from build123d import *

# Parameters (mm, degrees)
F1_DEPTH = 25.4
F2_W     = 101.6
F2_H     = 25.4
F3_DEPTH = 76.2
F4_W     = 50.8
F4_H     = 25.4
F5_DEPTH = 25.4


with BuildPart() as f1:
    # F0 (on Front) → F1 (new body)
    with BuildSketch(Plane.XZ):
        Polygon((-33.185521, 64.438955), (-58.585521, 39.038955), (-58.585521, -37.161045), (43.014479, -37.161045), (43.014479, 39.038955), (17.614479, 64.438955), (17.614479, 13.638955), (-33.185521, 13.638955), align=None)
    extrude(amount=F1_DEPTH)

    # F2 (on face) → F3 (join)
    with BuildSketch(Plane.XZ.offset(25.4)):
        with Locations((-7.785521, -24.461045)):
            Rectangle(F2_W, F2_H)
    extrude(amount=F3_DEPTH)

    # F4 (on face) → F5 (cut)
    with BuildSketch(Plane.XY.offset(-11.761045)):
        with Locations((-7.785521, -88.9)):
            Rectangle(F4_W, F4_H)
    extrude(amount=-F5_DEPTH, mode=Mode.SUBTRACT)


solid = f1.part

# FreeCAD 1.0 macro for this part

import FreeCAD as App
import Part
import Sketcher
from FreeCAD import Vector
Q = App.Units.Quantity

doc = App.newDocument("Part")
body = doc.addObject("PartDesign::Body", "Body")

# Sketch on XZ plane
sketch1 = body.newObject("Sketcher::SketchObject", "Sketch")
sketch1.AttachmentSupport = (doc.getObject("XZ_Plane"), [""])
sketch1.MapMode = "FlatFace"
sketch1.addGeometry([
    Part.LineSegment(Vector(-33, 64, 0), Vector(-59, 39, 0)),  # 0
    Part.LineSegment(Vector(-59, 39, 0), Vector(-59, -37, 0)),  # 1
    Part.LineSegment(Vector(-59, -37, 0), Vector(43, -37, 0)),  # 2
    Part.LineSegment(Vector(43, -37, 0), Vector(43, 39, 0)),  # 3
    Part.LineSegment(Vector(43, 39, 0), Vector(18, 64, 0)),  # 4
    Part.LineSegment(Vector(18, 64, 0), Vector(18, 14, 0)),  # 5
    Part.LineSegment(Vector(18, 14, 0), Vector(-33, 14, 0)),  # 6
    Part.LineSegment(Vector(-33, 14, 0), Vector(-33, 64, 0)),  # 7
], False)
sketch1.addConstraint([
    Sketcher.Constraint("Coincident", 0, 2, 1, 1),
    Sketcher.Constraint("Coincident", 1, 2, 2, 1),
    Sketcher.Constraint("Coincident", 2, 2, 3, 1),
    Sketcher.Constraint("Coincident", 3, 2, 4, 1),
    Sketcher.Constraint("Coincident", 4, 2, 5, 1),
    Sketcher.Constraint("Coincident", 5, 2, 6, 1),
    Sketcher.Constraint("Coincident", 6, 2, 7, 1),
    Sketcher.Constraint("Coincident", 7, 2, 0, 1),
    Sketcher.Constraint("Vertical", 1),
    Sketcher.Constraint("Horizontal", 2),
    Sketcher.Constraint("Vertical", 3),
    Sketcher.Constraint("Vertical", 5),
    Sketcher.Constraint("Horizontal", 6),
    Sketcher.Constraint("Vertical", 7),
    Sketcher.Constraint("Perpendicular", 0, 4),
    Sketcher.Constraint("Horizontal", 0, 2, 3, 2),
    Sketcher.Constraint("Horizontal", 4, 2, 7, 2),
    Sketcher.Constraint("Equal", 6, 5),
    Sketcher.Constraint("Equal", 0, 4),
    Sketcher.Constraint("DistanceX", 2, 1, 2, 2, Q("4 in")),
    Sketcher.Constraint("DistanceX", 6, 2, 6, 1, Q("2 in")),
    Sketcher.Constraint("DistanceY", 1, 2, 1, 1, Q("3 in")),
    Sketcher.Constraint("DistanceX", 0, 2, -1, 1, Q("58.585521 mm")),
    Sketcher.Constraint("DistanceY", -1, 1, 0, 2, Q("39.038955 mm")),
])
pad1 = body.newObject("PartDesign::Pad", "Pad")
pad1.Profile = sketch1
pad1.Length = Q("1 in")

# Sketch on XZ plane
sketch2 = body.newObject("Sketcher::SketchObject", "Sketch001")
sketch2.AttachmentSupport = (doc.getObject("XZ_Plane"), [""])
sketch2.MapMode = "FlatFace"
sketch2.AttachmentOffset = App.Placement(Vector(0, 0, 1 * 25.4), App.Rotation())
sketch2.addGeometry([
    Part.LineSegment(Vector(-59, -12, 0), Vector(-59, -37, 0)),
    Part.LineSegment(Vector(-59, -37, 0), Vector(43, -37, 0)),
    Part.LineSegment(Vector(43, -37, 0), Vector(43, -12, 0)),
    Part.LineSegment(Vector(43, -12, 0), Vector(-59, -12, 0)),
], False)
sketch2.addConstraint([
    Sketcher.Constraint("Coincident", 0, 2, 1, 1),
    Sketcher.Constraint("Coincident", 1, 2, 2, 1),
    Sketcher.Constraint("Coincident", 2, 2, 3, 1),
    Sketcher.Constraint("Coincident", 3, 2, 0, 1),
    Sketcher.Constraint("Vertical", 0),
    Sketcher.Constraint("Horizontal", 1),
    Sketcher.Constraint("Vertical", 2),
    Sketcher.Constraint("Horizontal", 3),
    Sketcher.Constraint("DistanceX", 1, 1, 1, 2, Q("4 in")),
    Sketcher.Constraint("DistanceY", 0, 2, 0, 1, Q("1 in")),
    Sketcher.Constraint("DistanceX", 0, 2, -1, 1, Q("58.585521 mm")),
    Sketcher.Constraint("DistanceY", 0, 2, -1, 1, Q("37.161045 mm")),
])
pad2 = body.newObject("PartDesign::Pad", "Pad001")
pad2.Profile = sketch2
pad2.Length = Q("3 in")

# Sketch on XY plane
sketch3 = body.newObject("Sketcher::SketchObject", "Sketch002")
sketch3.AttachmentSupport = (doc.getObject("XY_Plane"), [""])
sketch3.MapMode = "FlatFace"
sketch3.AttachmentOffset = App.Placement(Vector(0, 0, -11.761045), App.Rotation())
sketch3.addGeometry([
    Part.LineSegment(Vector(-33, -76, 0), Vector(-33, -102, 0)),
    Part.LineSegment(Vector(-33, -102, 0), Vector(18, -102, 0)),
    Part.LineSegment(Vector(18, -102, 0), Vector(18, -76, 0)),
    Part.LineSegment(Vector(18, -76, 0), Vector(-33, -76, 0)),
], False)
sketch3.addConstraint([
    Sketcher.Constraint("Coincident", 0, 2, 1, 1),
    Sketcher.Constraint("Coincident", 1, 2, 2, 1),
    Sketcher.Constraint("Coincident", 2, 2, 3, 1),
    Sketcher.Constraint("Coincident", 3, 2, 0, 1),
    Sketcher.Constraint("Vertical", 0),
    Sketcher.Constraint("Horizontal", 1),
    Sketcher.Constraint("Vertical", 2),
    Sketcher.Constraint("Horizontal", 3),
    Sketcher.Constraint("DistanceX", 1, 1, 1, 2, Q("2 in")),
    Sketcher.Constraint("DistanceY", 0, 2, 0, 1, Q("1 in")),
    Sketcher.Constraint("DistanceY", 0, 2, -1, 1, Q("4 in")),
    Sketcher.Constraint("DistanceX", 0, 2, -1, 1, Q("33.185521 mm")),
])
pocket1 = body.newObject("PartDesign::Pocket", "Pocket")
pocket1.Profile = sketch3
pocket1.Length = Q("1 in")

doc.recompute()
